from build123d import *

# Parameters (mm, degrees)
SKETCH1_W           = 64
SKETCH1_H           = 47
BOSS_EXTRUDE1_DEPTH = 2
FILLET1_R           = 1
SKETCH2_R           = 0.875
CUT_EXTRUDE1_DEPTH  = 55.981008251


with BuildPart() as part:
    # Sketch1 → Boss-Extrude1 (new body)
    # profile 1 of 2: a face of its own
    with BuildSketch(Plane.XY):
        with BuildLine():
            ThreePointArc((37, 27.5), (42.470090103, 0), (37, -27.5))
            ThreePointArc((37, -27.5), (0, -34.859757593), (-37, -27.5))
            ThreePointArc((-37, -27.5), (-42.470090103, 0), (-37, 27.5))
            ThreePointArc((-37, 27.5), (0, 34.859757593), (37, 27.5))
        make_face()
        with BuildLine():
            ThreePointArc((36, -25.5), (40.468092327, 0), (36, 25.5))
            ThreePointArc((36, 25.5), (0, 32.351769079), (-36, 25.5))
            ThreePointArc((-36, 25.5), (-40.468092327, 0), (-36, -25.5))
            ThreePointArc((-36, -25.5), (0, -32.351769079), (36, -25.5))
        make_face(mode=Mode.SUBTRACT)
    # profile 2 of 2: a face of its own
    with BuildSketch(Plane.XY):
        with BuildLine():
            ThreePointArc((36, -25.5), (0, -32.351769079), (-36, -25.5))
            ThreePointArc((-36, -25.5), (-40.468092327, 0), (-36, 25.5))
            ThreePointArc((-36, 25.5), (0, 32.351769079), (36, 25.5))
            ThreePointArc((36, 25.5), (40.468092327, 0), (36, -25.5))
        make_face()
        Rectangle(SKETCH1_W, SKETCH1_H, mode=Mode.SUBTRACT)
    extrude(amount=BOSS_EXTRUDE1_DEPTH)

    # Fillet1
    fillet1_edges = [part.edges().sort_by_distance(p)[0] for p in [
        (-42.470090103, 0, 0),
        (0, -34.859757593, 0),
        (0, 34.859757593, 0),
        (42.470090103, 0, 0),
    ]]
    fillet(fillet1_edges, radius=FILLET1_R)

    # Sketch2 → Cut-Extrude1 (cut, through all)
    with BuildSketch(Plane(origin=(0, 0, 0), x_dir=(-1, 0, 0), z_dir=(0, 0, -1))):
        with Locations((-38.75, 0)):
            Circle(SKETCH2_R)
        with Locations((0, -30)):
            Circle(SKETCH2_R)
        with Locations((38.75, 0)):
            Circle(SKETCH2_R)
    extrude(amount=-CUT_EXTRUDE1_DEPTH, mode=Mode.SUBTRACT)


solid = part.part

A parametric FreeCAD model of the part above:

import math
import FreeCAD as App
import Part
import Sketcher
Q = App.Units.Quantity


def edges_at(feature, points):
    """Names of the edges that pass closest to the given points."""
    edges = feature.Shape.Edges
    near = lambda p: min(range(len(edges)), key=lambda i: edges[i].distToShape(Part.Vertex(*p))[0])
    return sorted({f"Edge{near(p) + 1}" for p in points})


def add_polygon(sketch, points):
    """Adds a closed chain of lines whose ends are joined by coincident constraints."""
    first, n = sketch.GeometryCount, len(points)
    for a, b in zip(points, points[1:] + points[:1]):
        sketch.addGeometry(Part.LineSegment(App.Vector(*a, 0), App.Vector(*b, 0)), False)
    for i in range(n):
        sketch.addConstraint(Sketcher.Constraint("Coincident", first + i, 2, first + (i + 1) % n, 1))

doc = App.newDocument("Part")
body = doc.addObject("PartDesign::Body", "Body")

sketch1 = body.newObject("Sketcher::SketchObject", "Sketch")
sketch1.AttachmentSupport = (doc.getObject("XY_Plane"), [""])
sketch1.MapMode = "FlatFace"
sketch1.addGeometry(Part.ArcOfCircle(Part.Circle(App.Vector(-29, 0, 0), App.Vector(0, 0, 1), 72), math.radians(-23), math.radians(23)), False)
sketch1.addGeometry(Part.ArcOfCircle(Part.Circle(App.Vector(0, -62, 0), App.Vector(0, 0, 1), 97), math.radians(68), math.radians(112)), False)
sketch1.addGeometry(Part.ArcOfCircle(Part.Circle(App.Vector(29, 0, 0), App.Vector(0, 0, 1), 72), math.radians(157), math.radians(203)), False)
sketch1.addGeometry(Part.ArcOfCircle(Part.Circle(App.Vector(0, 62, 0), App.Vector(0, 0, 1), 97), math.radians(-112), math.radians(-68)), False)
add_polygon(sketch1, [(32, -24), (-32, -24), (-32, 24), (32, 24)])
sketch1.addConstraint(Sketcher.Constraint("Coincident", 0, 2, 1, 1))
sketch1.addConstraint(Sketcher.Constraint("Coincident", 1, 2, 2, 1))
sketch1.addConstraint(Sketcher.Constraint("Coincident", 2, 2, 3, 1))
sketch1.addConstraint(Sketcher.Constraint("Coincident", 3, 2, 0, 1))
sketch1.addConstraint(Sketcher.Constraint("Horizontal", 4))
sketch1.addConstraint(Sketcher.Constraint("Vertical", 5))
sketch1.addConstraint(Sketcher.Constraint("Horizontal", 6))
sketch1.addConstraint(Sketcher.Constraint("Vertical", 7))
sketch1.addConstraint(Sketcher.Constraint("Equal", 0, 2))
sketch1.addConstraint(Sketcher.Constraint("Equal", 1, 3))
sketch1.addConstraint(Sketcher.Constraint("Symmetric", 0, 3, 2, 3, -1, 1))
sketch1.addConstraint(Sketcher.Constraint("Symmetric", 1, 3, 3, 3, -1, 1))
sketch1.addConstraint(Sketcher.Constraint("Symmetric", 4, 2, 6, 2, -1, 1))
sketch1.addConstraint(Sketcher.Constraint("Symmetric", 0, 2, 1, 2, -2))
sketch1.addConstraint(Sketcher.Constraint("DistanceX", 4, 2, 4, 1, Q("64 mm")))
sketch1.addConstraint(Sketcher.Constraint("DistanceY", 5, 1, 5, 2, Q("47 mm")))
sketch1.addConstraint(Sketcher.Constraint("DistanceX", -1, 1, 0, 2, Q("37 mm")))
sketch1.addConstraint(Sketcher.Constraint("DistanceY", 2, 2, 1, 2, Q("55 mm")))
sketch1.addConstraint(Sketcher.Constraint("Radius", 1, Q("96.685659 mm")))
sketch1.addConstraint(Sketcher.Constraint("Radius", 0, Q("71.860963 mm")))
pad1 = body.newObject("PartDesign::Pad", "Pad")
pad1.Profile = sketch1
pad1.Length = 2
doc.recompute()

fillet = body.newObject("PartDesign::Fillet", "Fillet")
fillet.Base = (pad1, edges_at(pad1, [
    (-42.47, 0, 0),
    (0, -34.86, 0),
    (0, 34.86, 0),
    (42.47, 0, 0),
]))
fillet.Radius = 1

sketch2 = body.newObject("Sketcher::SketchObject", "Sketch001")
sketch2.AttachmentSupport = (doc.getObject("XY_Plane"), [""])
sketch2.MapMode = "FlatFace"
sketch2.addGeometry(Part.Circle(App.Vector(38.8, 0, 0), App.Vector(0, 0, 1), 0.9), False)
sketch2.addGeometry(Part.Circle(App.Vector(0, -30, 0), App.Vector(0, 0, 1), 0.9), False)
sketch2.addGeometry(Part.Circle(App.Vector(-38.8, 0, 0), App.Vector(0, 0, 1), 0.9), False)
sketch2.addConstraint(Sketcher.Constraint("Equal", 0, 1))
sketch2.addConstraint(Sketcher.Constraint("Equal", 1, 2))
sketch2.addConstraint(Sketcher.Constraint("Symmetric", 0, 3, 2, 3, -1, 1))
sketch2.addConstraint(Sketcher.Constraint("PointOnObject", 0, 3, -1))
sketch2.addConstraint(Sketcher.Constraint("PointOnObject", 1, 3, -2))
sketch2.addConstraint(Sketcher.Constraint("Diameter", 0, Q("1.75 mm")))
sketch2.addConstraint(Sketcher.Constraint("DistanceY", 1, 3, -1, 1, Q("30 mm")))
sketch2.addConstraint(Sketcher.Constraint("DistanceX", 2, 3, 0, 3, Q("77.5 mm")))
pocket1 = body.newObject("PartDesign::Pocket", "Pocket")
pocket1.Profile = sketch2
pocket1.Type = "ThroughAll"
pocket1.Reversed = True

doc.recompute()
